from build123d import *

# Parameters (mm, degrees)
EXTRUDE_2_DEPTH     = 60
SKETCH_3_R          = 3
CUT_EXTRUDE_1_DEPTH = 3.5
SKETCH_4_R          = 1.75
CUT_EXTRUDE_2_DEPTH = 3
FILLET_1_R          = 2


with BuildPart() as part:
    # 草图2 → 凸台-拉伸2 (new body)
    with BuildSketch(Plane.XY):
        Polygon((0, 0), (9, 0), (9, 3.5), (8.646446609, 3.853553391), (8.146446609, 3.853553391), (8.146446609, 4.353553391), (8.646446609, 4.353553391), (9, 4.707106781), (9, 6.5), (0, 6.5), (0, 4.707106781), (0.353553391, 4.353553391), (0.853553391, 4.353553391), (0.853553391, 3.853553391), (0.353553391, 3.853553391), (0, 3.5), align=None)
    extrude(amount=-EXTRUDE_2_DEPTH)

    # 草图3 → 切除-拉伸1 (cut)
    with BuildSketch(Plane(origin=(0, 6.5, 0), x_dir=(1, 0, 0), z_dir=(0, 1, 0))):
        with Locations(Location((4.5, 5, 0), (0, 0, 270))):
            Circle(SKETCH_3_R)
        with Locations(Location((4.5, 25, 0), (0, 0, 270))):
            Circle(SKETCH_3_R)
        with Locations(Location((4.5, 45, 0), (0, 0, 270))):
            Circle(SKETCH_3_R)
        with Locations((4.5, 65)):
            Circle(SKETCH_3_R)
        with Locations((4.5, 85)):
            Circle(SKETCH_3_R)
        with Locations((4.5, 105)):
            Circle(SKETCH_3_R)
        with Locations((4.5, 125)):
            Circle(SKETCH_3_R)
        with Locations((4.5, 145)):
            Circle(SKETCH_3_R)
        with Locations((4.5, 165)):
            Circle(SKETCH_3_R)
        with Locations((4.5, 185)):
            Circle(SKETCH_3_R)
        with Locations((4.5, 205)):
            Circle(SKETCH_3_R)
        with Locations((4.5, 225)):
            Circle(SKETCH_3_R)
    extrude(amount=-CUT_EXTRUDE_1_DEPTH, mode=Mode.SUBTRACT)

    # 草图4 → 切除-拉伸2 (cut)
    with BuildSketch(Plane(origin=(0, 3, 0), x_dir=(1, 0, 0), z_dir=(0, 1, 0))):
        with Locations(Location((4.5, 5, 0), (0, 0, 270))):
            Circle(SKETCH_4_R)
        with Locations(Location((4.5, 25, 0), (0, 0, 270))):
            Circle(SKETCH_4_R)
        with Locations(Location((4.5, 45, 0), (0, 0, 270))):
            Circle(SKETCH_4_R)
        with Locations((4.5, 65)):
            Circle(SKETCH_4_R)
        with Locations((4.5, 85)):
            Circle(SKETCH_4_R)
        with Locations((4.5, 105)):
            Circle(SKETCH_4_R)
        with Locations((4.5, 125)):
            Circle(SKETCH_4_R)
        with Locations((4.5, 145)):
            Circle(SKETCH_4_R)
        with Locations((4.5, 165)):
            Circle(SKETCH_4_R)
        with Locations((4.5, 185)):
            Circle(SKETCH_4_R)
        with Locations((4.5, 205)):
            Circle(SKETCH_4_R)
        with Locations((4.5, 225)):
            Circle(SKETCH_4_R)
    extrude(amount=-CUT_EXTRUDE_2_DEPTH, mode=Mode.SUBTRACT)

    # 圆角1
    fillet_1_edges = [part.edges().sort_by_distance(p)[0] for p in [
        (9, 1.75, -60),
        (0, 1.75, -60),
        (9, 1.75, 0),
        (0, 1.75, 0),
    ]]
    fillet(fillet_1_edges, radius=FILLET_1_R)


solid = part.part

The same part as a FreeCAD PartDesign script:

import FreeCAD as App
import Part
import Sketcher
Q = App.Units.Quantity


def edges_at(feature, points):
    """Names of the edges that pass closest to the given points."""
    edges = feature.Shape.Edges
    near = lambda p: min(range(len(edges)), key=lambda i: edges[i].distToShape(Part.Vertex(*p))[0])
    return sorted({f"Edge{near(p) + 1}" for p in points})

doc = App.newDocument("Part")
body = doc.addObject("PartDesign::Body", "Body")

# Sketch on XY plane
sketch1 = body.newObject("Sketcher::SketchObject", "Sketch")
sketch1.AttachmentSupport = (doc.getObject("XY_Plane"), [""])
sketch1.MapMode = "FlatFace"
sketch1.addGeometry(Part.LineSegment(App.Vector(0, 0, 0), App.Vector(9, 0, 0)), False)
sketch1.addGeometry(Part.LineSegment(App.Vector(9, 0, 0), App.Vector(9, 3.5, 0)), False)
sketch1.addGeometry(Part.LineSegment(App.Vector(9, 3.5, 0), App.Vector(8.646447, 3.853553, 0)), False)
sketch1.addGeometry(Part.LineSegment(App.Vector(8.646447, 3.853553, 0), App.Vector(8.146447, 3.853553, 0)), False)
sketch1.addGeometry(Part.LineSegment(App.Vector(8.146447, 3.853553, 0), App.Vector(8.146447, 4.353553, 0)), False)
sketch1.addGeometry(Part.LineSegment(App.Vector(8.146447, 4.353553, 0), App.Vector(8.646447, 4.353553, 0)), False)
sketch1.addGeometry(Part.LineSegment(App.Vector(8.646447, 4.353553, 0), App.Vector(9, 4.707107, 0)), False)
sketch1.addGeometry(Part.LineSegment(App.Vector(9, 4.707107, 0), App.Vector(9, 6.5, 0)), False)
sketch1.addGeometry(Part.LineSegment(App.Vector(9, 6.5, 0), App.Vector(0, 6.5, 0)), False)
sketch1.addGeometry(Part.LineSegment(App.Vector(0, 6.5, 0), App.Vector(0, 4.707107, 0)), False)
sketch1.addGeometry(Part.LineSegment(App.Vector(0, 4.707107, 0), App.Vector(0.353553, 4.353553, 0)), False)
sketch1.addGeometry(Part.LineSegment(App.Vector(0.353553, 4.353553, 0), App.Vector(0.853553, 4.353553, 0)), False)
sketch1.addGeometry(Part.LineSegment(App.Vector(0.853553, 4.353553, 0), App.Vector(0.853553, 3.853553, 0)), False)
sketch1.addGeometry(Part.LineSegment(App.Vector(0.853553, 3.853553, 0), App.Vector(0.353553, 3.853553, 0)), False)
sketch1.addGeometry(Part.LineSegment(App.Vector(0.353553, 3.853553, 0), App.Vector(0, 3.5, 0)), False)
sketch1.addGeometry(Part.LineSegment(App.Vector(0, 3.5, 0), App.Vector(0, 0, 0)), False)
sketch1.addConstraint(Sketcher.Constraint("Coincident", 0, 2, 1, 1))
sketch1.addConstraint(Sketcher.Constraint("Coincident", 1, 2, 2, 1))
sketch1.addConstraint(Sketcher.Constraint("Coincident", 2, 2, 3, 1))
sketch1.addConstraint(Sketcher.Constraint("Coincident", 3, 2, 4, 1))
sketch1.addConstraint(Sketcher.Constraint("Coincident", 4, 2, 5, 1))
sketch1.addConstraint(Sketcher.Constraint("Coincident", 5, 2, 6, 1))
sketch1.addConstraint(Sketcher.Constraint("Coincident", 6, 2, 7, 1))
sketch1.addConstraint(Sketcher.Constraint("Coincident", 7, 2, 8, 1))
sketch1.addConstraint(Sketcher.Constraint("Coincident", 8, 2, 9, 1))
sketch1.addConstraint(Sketcher.Constraint("Coincident", 9, 2, 10, 1))
sketch1.addConstraint(Sketcher.Constraint("Coincident", 10, 2, 11, 1))
sketch1.addConstraint(Sketcher.Constraint("Coincident", 11, 2, 12, 1))
sketch1.addConstraint(Sketcher.Constraint("Coincident", 12, 2, 13, 1))
sketch1.addConstraint(Sketcher.Constraint("Coincident", 13, 2, 14, 1))
sketch1.addConstraint(Sketcher.Constraint("Coincident", 14, 2, 15, 1))
sketch1.addConstraint(Sketcher.Constraint("Coincident", 15, 2, 0, 1))
sketch1.addConstraint(Sketcher.Constraint("Horizontal", 0))
sketch1.addConstraint(Sketcher.Constraint("Vertical", 1))
sketch1.addConstraint(Sketcher.Constraint("Horizontal", 3))
sketch1.addConstraint(Sketcher.Constraint("Vertical", 4))
sketch1.addConstraint(Sketcher.Constraint("Horizontal", 5))
sketch1.addConstraint(Sketcher.Constraint("Vertical", 7))
sketch1.addConstraint(Sketcher.Constraint("Horizontal", 8))
sketch1.addConstraint(Sketcher.Constraint("Vertical", 9))
sketch1.addConstraint(Sketcher.Constraint("Horizontal", 11))
sketch1.addConstraint(Sketcher.Constraint("Vertical", 12))
sketch1.addConstraint(Sketcher.Constraint("Horizontal", 13))
sketch1.addConstraint(Sketcher.Constraint("Vertical", 15))
sketch1.addConstraint(Sketcher.Constraint("Coincident", 15, 2, -1, 1))
sketch1.addConstraint(Sketcher.Constraint("PointOnObject", 8, 2, -2))
sketch1.addConstraint(Sketcher.Constraint("Perpendicular", 2, 6))
sketch1.addConstraint(Sketcher.Constraint("Perpendicular", 6, 10))
sketch1.addConstraint(Sketcher.Constraint("Perpendicular", 10, 14))
sketch1.addConstraint(Sketcher.Constraint("Horizontal", 6, 2, 9, 2))
sketch1.addConstraint(Sketcher.Constraint("Horizontal", 5, 2, 10, 2))
sketch1.addConstraint(Sketcher.Constraint("Horizontal", 3, 2, 12, 2))
sketch1.addConstraint(Sketcher.Constraint("Horizontal", 1, 2, 14, 2))
sketch1.addConstraint(Sketcher.Constraint("Vertical", 2, 2, 5, 2))
sketch1.addConstraint(Sketcher.Constraint("Vertical", 1, 2, 6, 2))
sketch1.addConstraint(Sketcher.Constraint("Vertical", 10, 2, 13, 2))
sketch1.addConstraint(Sketcher.Constraint("Equal", 5, 11))
sketch1.addConstraint(Sketcher.Constraint("Equal", 13, 4))
sketch1.addConstraint(Sketcher.Constraint("DistanceX", 0, 1, 0, 2, Q("9 mm")))
sketch1.addConstraint(Sketcher.Constraint("DistanceX", 3, 2, 3, 1, Q("0.5 mm")))
sketch1.addConstraint(Sketcher.Constraint("DistanceY", 1, 1, 1, 2, Q("3.5 mm")))
sketch1.addConstraint(Sketcher.Constraint("Distance", 2, Q("0.5 mm")))
sketch1.addConstraint(Sketcher.Constraint("DistanceY", -1, 1, 7, 2, Q("6.5 mm")))
pad1 = body.newObject("PartDesign::Pad", "Pad")
pad1.Profile = sketch1
pad1.Length = 60
pad1.Reversed = True

# Sketch on XZ plane
sketch2 = body.newObject("Sketcher::SketchObject", "Sketch001")
sketch2.AttachmentSupport = (doc.getObject("XZ_Plane"), [""])
sketch2.MapMode = "FlatFace"
sketch2.AttachmentOffset = App.Placement(App.Vector(0, 0, -6.5), App.Rotation())
sketch2.addGeometry(Part.Circle(App.Vector(4.5, -5, 0), App.Vector(0, 0, 1), 3), False)
sketch2.addGeometry(Part.Circle(App.Vector(4.5, -25, 0), App.Vector(0, 0, 1), 3), False)
sketch2.addGeometry(Part.Circle(App.Vector(4.5, -45, 0), App.Vector(0, 0, 1), 3), False)
sketch2.addGeometry(Part.Circle(App.Vector(4.5, -65, 0), App.Vector(0, 0, 1), 3), False)
sketch2.addGeometry(Part.Circle(App.Vector(4.5, -85, 0), App.Vector(0, 0, 1), 3), False)
sketch2.addGeometry(Part.Circle(App.Vector(4.5, -105, 0), App.Vector(0, 0, 1), 3), False)
sketch2.addGeometry(Part.Circle(App.Vector(4.5, -125, 0), App.Vector(0, 0, 1), 3), False)
sketch2.addGeometry(Part.Circle(App.Vector(4.5, -145, 0), App.Vector(0, 0, 1), 3), False)
sketch2.addGeometry(Part.Circle(App.Vector(4.5, -165, 0), App.Vector(0, 0, 1), 3), False)
sketch2.addGeometry(Part.Circle(App.Vector(4.5, -185, 0), App.Vector(0, 0, 1), 3), False)
sketch2.addGeometry(Part.Circle(App.Vector(4.5, -205, 0), App.Vector(0, 0, 1), 3), False)
sketch2.addGeometry(Part.Circle(App.Vector(4.5, -225, 0), App.Vector(0, 0, 1), 3), False)
sketch2.addConstraint(Sketcher.Constraint("Equal", 0, 1))
sketch2.addConstraint(Sketcher.Constraint("Equal", 1, 2))
sketch2.addConstraint(Sketcher.Constraint("Equal", 2, 3))
sketch2.addConstraint(Sketcher.Constraint("Equal", 3, 4))
sketch2.addConstraint(Sketcher.Constraint("Equal", 4, 5))
sketch2.addConstraint(Sketcher.Constraint("Equal", 5, 6))
sketch2.addConstraint(Sketcher.Constraint("Equal", 6, 7))
sketch2.addConstraint(Sketcher.Constraint("Equal", 7, 8))
sketch2.addConstraint(Sketcher.Constraint("Equal", 8, 9))
sketch2.addConstraint(Sketcher.Constraint("Equal", 9, 10))
sketch2.addConstraint(Sketcher.Constraint("Equal", 10, 11))
sketch2.addConstraint(Sketcher.Constraint("Vertical", 0, 3, 1, 3))
sketch2.addConstraint(Sketcher.Constraint("Vertical", 1, 3, 2, 3))
sketch2.addConstraint(Sketcher.Constraint("Vertical", 2, 3, 3, 3))
sketch2.addConstraint(Sketcher.Constraint("Vertical", 3, 3, 4, 3))
sketch2.addConstraint(Sketcher.Constraint("Vertical", 4, 3, 5, 3))
sketch2.addConstraint(Sketcher.Constraint("Vertical", 5, 3, 6, 3))
sketch2.addConstraint(Sketcher.Constraint("Vertical", 6, 3, 7, 3))
sketch2.addConstraint(Sketcher.Constraint("Vertical", 7, 3, 8, 3))
sketch2.addConstraint(Sketcher.Constraint("Vertical", 8, 3, 9, 3))
sketch2.addConstraint(Sketcher.Constraint("Vertical", 9, 3, 10, 3))
sketch2.addConstraint(Sketcher.Constraint("Vertical", 10, 3, 11, 3))
sketch2.addConstraint(Sketcher.Constraint("Diameter", 0, Q("6 mm")))
sketch2.addConstraint(Sketcher.Constraint("DistanceY", 0, 3, -1, 1, Q("5 mm")))
sketch2.addConstraint(Sketcher.Constraint("DistanceY", 1, 3, -1, 1, Q("25 mm")))
sketch2.addConstraint(Sketcher.Constraint("DistanceY", 2, 3, -1, 1, Q("45 mm")))
sketch2.addConstraint(Sketcher.Constraint("DistanceY", 3, 3, -1, 1, Q("65 mm")))
sketch2.addConstraint(Sketcher.Constraint("DistanceY", 4, 3, -1, 1, Q("85 mm")))
sketch2.addConstraint(Sketcher.Constraint("DistanceY", 5, 3, -1, 1, Q("105 mm")))
sketch2.addConstraint(Sketcher.Constraint("DistanceY", 6, 3, -1, 1, Q("125 mm")))
sketch2.addConstraint(Sketcher.Constraint("DistanceY", 7, 3, -1, 1, Q("145 mm")))
sketch2.addConstraint(Sketcher.Constraint("DistanceY", 8, 3, -1, 1, Q("165 mm")))
sketch2.addConstraint(Sketcher.Constraint("DistanceY", 9, 3, -1, 1, Q("185 mm")))
sketch2.addConstraint(Sketcher.Constraint("DistanceY", 10, 3, -1, 1, Q("205 mm")))
sketch2.addConstraint(Sketcher.Constraint("DistanceY", 11, 3, -1, 1, Q("225 mm")))
sketch2.addConstraint(Sketcher.Constraint("DistanceX", -1, 1, 0, 3, Q("4.5 mm")))
pocket1 = body.newObject("PartDesign::Pocket", "Pocket")
pocket1.Profile = sketch2
pocket1.Length = 3.5
pocket1.Reversed = True

# Sketch on XZ plane
sketch3 = body.newObject("Sketcher::SketchObject", "Sketch002")
sketch3.AttachmentSupport = (doc.getObject("XZ_Plane"), [""])
sketch3.MapMode = "FlatFace"
sketch3.AttachmentOffset = App.Placement(App.Vector(0, 0, -3), App.Rotation())
sketch3.addGeometry(Part.Circle(App.Vector(4.5, -5, 0), App.Vector(0, 0, 1), 1.75), False)
sketch3.addGeometry(Part.Circle(App.Vector(4.5, -25, 0), App.Vector(0, 0, 1), 1.75), False)
sketch3.addGeometry(Part.Circle(App.Vector(4.5, -45, 0), App.Vector(0, 0, 1), 1.75), False)
sketch3.addGeometry(Part.Circle(App.Vector(4.5, -65, 0), App.Vector(0, 0, 1), 1.75), False)
sketch3.addGeometry(Part.Circle(App.Vector(4.5, -85, 0), App.Vector(0, 0, 1), 1.75), False)
sketch3.addGeometry(Part.Circle(App.Vector(4.5, -105, 0), App.Vector(0, 0, 1), 1.75), False)
sketch3.addGeometry(Part.Circle(App.Vector(4.5, -125, 0), App.Vector(0, 0, 1), 1.75), False)
sketch3.addGeometry(Part.Circle(App.Vector(4.5, -145, 0), App.Vector(0, 0, 1), 1.75), False)
sketch3.addGeometry(Part.Circle(App.Vector(4.5, -165, 0), App.Vector(0, 0, 1), 1.75), False)
sketch3.addGeometry(Part.Circle(App.Vector(4.5, -185, 0), App.Vector(0, 0, 1), 1.75), False)
sketch3.addGeometry(Part.Circle(App.Vector(4.5, -205, 0), App.Vector(0, 0, 1), 1.75), False)
sketch3.addGeometry(Part.Circle(App.Vector(4.5, -225, 0), App.Vector(0, 0, 1), 1.75), False)
sketch3.addConstraint(Sketcher.Constraint("Equal", 0, 1))
sketch3.addConstraint(Sketcher.Constraint("Equal", 1, 2))
sketch3.addConstraint(Sketcher.Constraint("Equal", 2, 3))
sketch3.addConstraint(Sketcher.Constraint("Equal", 3, 4))
sketch3.addConstraint(Sketcher.Constraint("Equal", 4, 5))
sketch3.addConstraint(Sketcher.Constraint("Equal", 5, 6))
sketch3.addConstraint(Sketcher.Constraint("Equal", 6, 7))
sketch3.addConstraint(Sketcher.Constraint("Equal", 7, 8))
sketch3.addConstraint(Sketcher.Constraint("Equal", 8, 9))
sketch3.addConstraint(Sketcher.Constraint("Equal", 9, 10))
sketch3.addConstraint(Sketcher.Constraint("Equal", 10, 11))
sketch3.addConstraint(Sketcher.Constraint("Vertical", 0, 3, 1, 3))
sketch3.addConstraint(Sketcher.Constraint("Vertical", 1, 3, 2, 3))
sketch3.addConstraint(Sketcher.Constraint("Vertical", 2, 3, 3, 3))
sketch3.addConstraint(Sketcher.Constraint("Vertical", 3, 3, 4, 3))
sketch3.addConstraint(Sketcher.Constraint("Vertical", 4, 3, 5, 3))
sketch3.addConstraint(Sketcher.Constraint("Vertical", 5, 3, 6, 3))
sketch3.addConstraint(Sketcher.Constraint("Vertical", 6, 3, 7, 3))
sketch3.addConstraint(Sketcher.Constraint("Vertical", 7, 3, 8, 3))
sketch3.addConstraint(Sketcher.Constraint("Vertical", 8, 3, 9, 3))
sketch3.addConstraint(Sketcher.Constraint("Vertical", 9, 3, 10, 3))
sketch3.addConstraint(Sketcher.Constraint("Vertical", 10, 3, 11, 3))
sketch3.addConstraint(Sketcher.Constraint("Diameter", 0, Q("3.5 mm")))
sketch3.addConstraint(Sketcher.Constraint("DistanceY", 0, 3, -1, 1, Q("5 mm")))
sketch3.addConstraint(Sketcher.Constraint("DistanceY", 1, 3, -1, 1, Q("25 mm")))
sketch3.addConstraint(Sketcher.Constraint("DistanceY", 2, 3, -1, 1, Q("45 mm")))
sketch3.addConstraint(Sketcher.Constraint("DistanceY", 3, 3, -1, 1, Q("65 mm")))
sketch3.addConstraint(Sketcher.Constraint("DistanceY", 4, 3, -1, 1, Q("85 mm")))
sketch3.addConstraint(Sketcher.Constraint("DistanceY", 5, 3, -1, 1, Q("105 mm")))
sketch3.addConstraint(Sketcher.Constraint("DistanceY", 6, 3, -1, 1, Q("125 mm")))
sketch3.addConstraint(Sketcher.Constraint("DistanceY", 7, 3, -1, 1, Q("145 mm")))
sketch3.addConstraint(Sketcher.Constraint("DistanceY", 8, 3, -1, 1, Q("165 mm")))
sketch3.addConstraint(Sketcher.Constraint("DistanceY", 9, 3, -1, 1, Q("185 mm")))
sketch3.addConstraint(Sketcher.Constraint("DistanceY", 10, 3, -1, 1, Q("205 mm")))
sketch3.addConstraint(Sketcher.Constraint("DistanceY", 11, 3, -1, 1, Q("225 mm")))
sketch3.addConstraint(Sketcher.Constraint("DistanceX", -1, 1, 0, 3, Q("4.5 mm")))
pocket2 = body.newObject("PartDesign::Pocket", "Pocket001")
pocket2.Profile = sketch3
pocket2.Length = 3
pocket2.Reversed = True
doc.recompute()

fillet = body.newObject("PartDesign::Fillet", "Fillet")
fillet.Base = (pocket2, edges_at(pocket2, [
    (9, 1.75, -60),
    (0, 1.75, -60),
    (9, 1.75, 0),
    (0, 1.75, 0),
]))
fillet.Radius = 2

doc.recompute()
